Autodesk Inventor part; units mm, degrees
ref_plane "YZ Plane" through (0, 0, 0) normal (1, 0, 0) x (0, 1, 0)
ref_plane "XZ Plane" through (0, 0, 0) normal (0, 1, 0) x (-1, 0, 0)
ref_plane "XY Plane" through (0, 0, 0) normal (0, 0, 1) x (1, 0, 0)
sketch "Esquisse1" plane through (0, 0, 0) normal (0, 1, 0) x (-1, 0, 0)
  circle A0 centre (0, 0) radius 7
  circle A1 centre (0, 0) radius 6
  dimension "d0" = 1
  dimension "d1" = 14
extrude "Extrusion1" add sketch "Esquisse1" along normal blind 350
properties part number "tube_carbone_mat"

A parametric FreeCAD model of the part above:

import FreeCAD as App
import Part
import Sketcher

V = App.Vector

doc = App.newDocument("Part")
params = doc.addObject("Spreadsheet::Sheet", "Params")
for row, (alias, value) in enumerate([
    ("sketch1_diameter", "14 mm"),
    ("sketch1_diameter2", "12 mm"),
    ("pad1_length", "350 mm"),
], start=1):
    params.set(f"A{row}", alias)
    params.set(f"B{row}", "=" + value)
    params.setAlias(f"B{row}", alias)

body = doc.addObject("PartDesign::Body", "Body")

# Sketch on XZ plane
sketch1 = body.newObject("Sketcher::SketchObject", "Sketch")
sketch1.AttachmentSupport = (doc.getObject("XZ_Plane"), [""])
sketch1.MapMode = "FlatFace"
sketch1.addGeometry([
    Part.Circle(V(0, 0, 0), V(0, 0, 1), 7),
    Part.Circle(V(0, 0, 0), V(0, 0, 1), 6),
], False)
sketch1.addConstraint([
    Sketcher.Constraint("Coincident", 0, 3, -1, 1),
    Sketcher.Constraint("Coincident", 1, 3, -1, 1),
    Sketcher.Constraint("Diameter", 0, 14.0),
    Sketcher.Constraint("Diameter", 1, 12.0),
])
sketch1.setExpression("Constraints[2]", "Params.sketch1_diameter")
sketch1.setExpression("Constraints[3]", "Params.sketch1_diameter2")
pad1 = body.newObject("PartDesign::Pad", "Pad")
pad1.Profile = sketch1
pad1.setExpression("Length", "Params.pad1_length")
pad1.Reversed = True

doc.recompute()
